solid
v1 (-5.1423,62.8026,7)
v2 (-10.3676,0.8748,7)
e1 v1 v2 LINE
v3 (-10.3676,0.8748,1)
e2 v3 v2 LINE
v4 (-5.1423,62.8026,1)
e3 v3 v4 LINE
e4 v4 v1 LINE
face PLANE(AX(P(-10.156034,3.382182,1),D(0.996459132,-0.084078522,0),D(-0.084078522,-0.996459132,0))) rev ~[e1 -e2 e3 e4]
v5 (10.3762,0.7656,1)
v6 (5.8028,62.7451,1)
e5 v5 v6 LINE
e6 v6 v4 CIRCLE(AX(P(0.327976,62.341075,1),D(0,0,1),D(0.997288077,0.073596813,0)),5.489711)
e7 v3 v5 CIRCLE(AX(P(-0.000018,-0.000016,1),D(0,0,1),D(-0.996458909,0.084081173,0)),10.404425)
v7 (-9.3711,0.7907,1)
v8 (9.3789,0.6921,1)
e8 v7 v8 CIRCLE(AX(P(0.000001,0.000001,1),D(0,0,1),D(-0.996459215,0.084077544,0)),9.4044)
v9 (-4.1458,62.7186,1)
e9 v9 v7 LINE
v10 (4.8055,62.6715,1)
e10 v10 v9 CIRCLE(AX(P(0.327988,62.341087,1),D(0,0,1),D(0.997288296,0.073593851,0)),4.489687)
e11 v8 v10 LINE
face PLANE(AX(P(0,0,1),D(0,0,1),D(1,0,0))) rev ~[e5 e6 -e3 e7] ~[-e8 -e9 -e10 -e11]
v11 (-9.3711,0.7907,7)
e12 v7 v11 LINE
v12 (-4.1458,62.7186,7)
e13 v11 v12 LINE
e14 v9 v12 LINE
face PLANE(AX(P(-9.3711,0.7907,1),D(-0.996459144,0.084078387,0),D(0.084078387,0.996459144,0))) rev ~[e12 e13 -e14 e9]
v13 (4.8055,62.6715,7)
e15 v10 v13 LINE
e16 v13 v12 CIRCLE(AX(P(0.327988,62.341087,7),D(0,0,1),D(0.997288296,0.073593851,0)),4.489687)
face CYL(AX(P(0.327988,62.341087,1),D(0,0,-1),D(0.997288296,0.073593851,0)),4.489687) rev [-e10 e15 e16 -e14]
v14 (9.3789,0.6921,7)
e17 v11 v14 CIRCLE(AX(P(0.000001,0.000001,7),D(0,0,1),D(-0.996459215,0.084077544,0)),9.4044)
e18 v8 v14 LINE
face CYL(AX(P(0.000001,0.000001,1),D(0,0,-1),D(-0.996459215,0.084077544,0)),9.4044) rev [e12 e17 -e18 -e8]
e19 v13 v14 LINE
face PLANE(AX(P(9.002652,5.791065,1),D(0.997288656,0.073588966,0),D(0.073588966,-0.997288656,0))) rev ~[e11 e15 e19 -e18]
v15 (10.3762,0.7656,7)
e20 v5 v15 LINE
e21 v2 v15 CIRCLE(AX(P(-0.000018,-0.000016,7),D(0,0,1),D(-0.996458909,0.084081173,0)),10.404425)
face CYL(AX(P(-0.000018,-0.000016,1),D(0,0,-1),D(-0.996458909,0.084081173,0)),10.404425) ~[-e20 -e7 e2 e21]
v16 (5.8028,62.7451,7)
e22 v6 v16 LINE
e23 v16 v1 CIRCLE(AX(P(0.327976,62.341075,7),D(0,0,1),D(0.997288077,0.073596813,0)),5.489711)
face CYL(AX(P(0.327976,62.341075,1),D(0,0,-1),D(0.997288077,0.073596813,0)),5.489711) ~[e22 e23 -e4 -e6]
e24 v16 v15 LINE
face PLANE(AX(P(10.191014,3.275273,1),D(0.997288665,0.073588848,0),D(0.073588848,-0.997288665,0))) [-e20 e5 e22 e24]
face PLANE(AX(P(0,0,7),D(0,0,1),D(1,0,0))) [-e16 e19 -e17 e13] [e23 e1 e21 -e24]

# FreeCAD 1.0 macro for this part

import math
import FreeCAD as App
import Part
import Sketcher
from FreeCAD import Vector
Q = App.Units.Quantity

doc = App.newDocument("Part")
params = doc.addObject("Spreadsheet::Sheet", "Params")
for row, (alias, value) in enumerate([
    ("pad1_length", "6 mm"),
], start=1):
    params.set(f"A{row}", alias)
    params.set(f"B{row}", "=" + value)
    params.setAlias(f"B{row}", alias)

body = doc.addObject("PartDesign::Body", "Body")

# Sketch on XY plane
sketch1 = body.newObject("Sketcher::SketchObject", "Sketch")
sketch1.AttachmentSupport = (doc.getObject("XY_Plane"), [""])
sketch1.MapMode = "FlatFace"
sketch1.AttachmentOffset = App.Placement(Vector(0, 0, 1), App.Rotation())
sketch1.addGeometry([
    Part.LineSegment(Vector(10.4, 0.8, 0), Vector(5.8, 62.7, 0)),  # 0
    Part.ArcOfCircle(Part.Circle(Vector(0.3, 62.3, 0), Vector(0, 0, 1), 5.5), math.radians(4), math.radians(175)),  # 1
    Part.LineSegment(Vector(-5.1, 62.8, 0), Vector(-10.4, 0.9, 0)),  # 2
    Part.ArcOfCircle(Part.Circle(Vector(0, 0, 0), Vector(0, 0, 1), 10.4), math.radians(175), math.radians(364)),  # 3
    Part.LineSegment(Vector(-9.4, 0.8, 0), Vector(-4.1, 62.7, 0)),  # 4
    Part.ArcOfCircle(Part.Circle(Vector(0.3, 62.3, 0), Vector(0, 0, 1), 4.5), math.radians(4), math.radians(175)),  # 5
    Part.LineSegment(Vector(4.8, 62.7, 0), Vector(9.4, 0.7, 0)),  # 6
    Part.ArcOfCircle(Part.Circle(Vector(0, 0, 0), Vector(0, 0, 1), 9.4), math.radians(175), math.radians(364)),  # 7
], False)
sketch1.addConstraint([
    Sketcher.Constraint("Tangent", 0, 2, 1, 1),
    Sketcher.Constraint("Tangent", 1, 2, 2, 1),
    Sketcher.Constraint("Tangent", 2, 2, 3, 1),
    Sketcher.Constraint("Tangent", 3, 2, 0, 1),
    Sketcher.Constraint("Tangent", 4, 2, 5, 2),
    Sketcher.Constraint("Tangent", 5, 1, 6, 1),
    Sketcher.Constraint("Tangent", 6, 2, 7, 2),
    Sketcher.Constraint("Tangent", 7, 1, 4, 1),
    Sketcher.Constraint("Coincident", 3, 3, -1, 1),
    Sketcher.Constraint("Coincident", 7, 3, -1, 1),
    Sketcher.Constraint("Coincident", 5, 3, 1, 3),
    Sketcher.Constraint("Parallel", 2, 4),
    Sketcher.Constraint("Angle", 0, Q("94.2201 deg")),
    Sketcher.Constraint("Radius", 1, 5.4897),
    Sketcher.Constraint("Radius", 3, 10.4044),
    Sketcher.Constraint("Radius", 5, 4.4897),
    Sketcher.Constraint("Distance", 0, 62.148),
])
pad1 = body.newObject("PartDesign::Pad", "Pad")
pad1.Profile = sketch1
pad1.setExpression("Length", "Params.pad1_length")

doc.recompute()
